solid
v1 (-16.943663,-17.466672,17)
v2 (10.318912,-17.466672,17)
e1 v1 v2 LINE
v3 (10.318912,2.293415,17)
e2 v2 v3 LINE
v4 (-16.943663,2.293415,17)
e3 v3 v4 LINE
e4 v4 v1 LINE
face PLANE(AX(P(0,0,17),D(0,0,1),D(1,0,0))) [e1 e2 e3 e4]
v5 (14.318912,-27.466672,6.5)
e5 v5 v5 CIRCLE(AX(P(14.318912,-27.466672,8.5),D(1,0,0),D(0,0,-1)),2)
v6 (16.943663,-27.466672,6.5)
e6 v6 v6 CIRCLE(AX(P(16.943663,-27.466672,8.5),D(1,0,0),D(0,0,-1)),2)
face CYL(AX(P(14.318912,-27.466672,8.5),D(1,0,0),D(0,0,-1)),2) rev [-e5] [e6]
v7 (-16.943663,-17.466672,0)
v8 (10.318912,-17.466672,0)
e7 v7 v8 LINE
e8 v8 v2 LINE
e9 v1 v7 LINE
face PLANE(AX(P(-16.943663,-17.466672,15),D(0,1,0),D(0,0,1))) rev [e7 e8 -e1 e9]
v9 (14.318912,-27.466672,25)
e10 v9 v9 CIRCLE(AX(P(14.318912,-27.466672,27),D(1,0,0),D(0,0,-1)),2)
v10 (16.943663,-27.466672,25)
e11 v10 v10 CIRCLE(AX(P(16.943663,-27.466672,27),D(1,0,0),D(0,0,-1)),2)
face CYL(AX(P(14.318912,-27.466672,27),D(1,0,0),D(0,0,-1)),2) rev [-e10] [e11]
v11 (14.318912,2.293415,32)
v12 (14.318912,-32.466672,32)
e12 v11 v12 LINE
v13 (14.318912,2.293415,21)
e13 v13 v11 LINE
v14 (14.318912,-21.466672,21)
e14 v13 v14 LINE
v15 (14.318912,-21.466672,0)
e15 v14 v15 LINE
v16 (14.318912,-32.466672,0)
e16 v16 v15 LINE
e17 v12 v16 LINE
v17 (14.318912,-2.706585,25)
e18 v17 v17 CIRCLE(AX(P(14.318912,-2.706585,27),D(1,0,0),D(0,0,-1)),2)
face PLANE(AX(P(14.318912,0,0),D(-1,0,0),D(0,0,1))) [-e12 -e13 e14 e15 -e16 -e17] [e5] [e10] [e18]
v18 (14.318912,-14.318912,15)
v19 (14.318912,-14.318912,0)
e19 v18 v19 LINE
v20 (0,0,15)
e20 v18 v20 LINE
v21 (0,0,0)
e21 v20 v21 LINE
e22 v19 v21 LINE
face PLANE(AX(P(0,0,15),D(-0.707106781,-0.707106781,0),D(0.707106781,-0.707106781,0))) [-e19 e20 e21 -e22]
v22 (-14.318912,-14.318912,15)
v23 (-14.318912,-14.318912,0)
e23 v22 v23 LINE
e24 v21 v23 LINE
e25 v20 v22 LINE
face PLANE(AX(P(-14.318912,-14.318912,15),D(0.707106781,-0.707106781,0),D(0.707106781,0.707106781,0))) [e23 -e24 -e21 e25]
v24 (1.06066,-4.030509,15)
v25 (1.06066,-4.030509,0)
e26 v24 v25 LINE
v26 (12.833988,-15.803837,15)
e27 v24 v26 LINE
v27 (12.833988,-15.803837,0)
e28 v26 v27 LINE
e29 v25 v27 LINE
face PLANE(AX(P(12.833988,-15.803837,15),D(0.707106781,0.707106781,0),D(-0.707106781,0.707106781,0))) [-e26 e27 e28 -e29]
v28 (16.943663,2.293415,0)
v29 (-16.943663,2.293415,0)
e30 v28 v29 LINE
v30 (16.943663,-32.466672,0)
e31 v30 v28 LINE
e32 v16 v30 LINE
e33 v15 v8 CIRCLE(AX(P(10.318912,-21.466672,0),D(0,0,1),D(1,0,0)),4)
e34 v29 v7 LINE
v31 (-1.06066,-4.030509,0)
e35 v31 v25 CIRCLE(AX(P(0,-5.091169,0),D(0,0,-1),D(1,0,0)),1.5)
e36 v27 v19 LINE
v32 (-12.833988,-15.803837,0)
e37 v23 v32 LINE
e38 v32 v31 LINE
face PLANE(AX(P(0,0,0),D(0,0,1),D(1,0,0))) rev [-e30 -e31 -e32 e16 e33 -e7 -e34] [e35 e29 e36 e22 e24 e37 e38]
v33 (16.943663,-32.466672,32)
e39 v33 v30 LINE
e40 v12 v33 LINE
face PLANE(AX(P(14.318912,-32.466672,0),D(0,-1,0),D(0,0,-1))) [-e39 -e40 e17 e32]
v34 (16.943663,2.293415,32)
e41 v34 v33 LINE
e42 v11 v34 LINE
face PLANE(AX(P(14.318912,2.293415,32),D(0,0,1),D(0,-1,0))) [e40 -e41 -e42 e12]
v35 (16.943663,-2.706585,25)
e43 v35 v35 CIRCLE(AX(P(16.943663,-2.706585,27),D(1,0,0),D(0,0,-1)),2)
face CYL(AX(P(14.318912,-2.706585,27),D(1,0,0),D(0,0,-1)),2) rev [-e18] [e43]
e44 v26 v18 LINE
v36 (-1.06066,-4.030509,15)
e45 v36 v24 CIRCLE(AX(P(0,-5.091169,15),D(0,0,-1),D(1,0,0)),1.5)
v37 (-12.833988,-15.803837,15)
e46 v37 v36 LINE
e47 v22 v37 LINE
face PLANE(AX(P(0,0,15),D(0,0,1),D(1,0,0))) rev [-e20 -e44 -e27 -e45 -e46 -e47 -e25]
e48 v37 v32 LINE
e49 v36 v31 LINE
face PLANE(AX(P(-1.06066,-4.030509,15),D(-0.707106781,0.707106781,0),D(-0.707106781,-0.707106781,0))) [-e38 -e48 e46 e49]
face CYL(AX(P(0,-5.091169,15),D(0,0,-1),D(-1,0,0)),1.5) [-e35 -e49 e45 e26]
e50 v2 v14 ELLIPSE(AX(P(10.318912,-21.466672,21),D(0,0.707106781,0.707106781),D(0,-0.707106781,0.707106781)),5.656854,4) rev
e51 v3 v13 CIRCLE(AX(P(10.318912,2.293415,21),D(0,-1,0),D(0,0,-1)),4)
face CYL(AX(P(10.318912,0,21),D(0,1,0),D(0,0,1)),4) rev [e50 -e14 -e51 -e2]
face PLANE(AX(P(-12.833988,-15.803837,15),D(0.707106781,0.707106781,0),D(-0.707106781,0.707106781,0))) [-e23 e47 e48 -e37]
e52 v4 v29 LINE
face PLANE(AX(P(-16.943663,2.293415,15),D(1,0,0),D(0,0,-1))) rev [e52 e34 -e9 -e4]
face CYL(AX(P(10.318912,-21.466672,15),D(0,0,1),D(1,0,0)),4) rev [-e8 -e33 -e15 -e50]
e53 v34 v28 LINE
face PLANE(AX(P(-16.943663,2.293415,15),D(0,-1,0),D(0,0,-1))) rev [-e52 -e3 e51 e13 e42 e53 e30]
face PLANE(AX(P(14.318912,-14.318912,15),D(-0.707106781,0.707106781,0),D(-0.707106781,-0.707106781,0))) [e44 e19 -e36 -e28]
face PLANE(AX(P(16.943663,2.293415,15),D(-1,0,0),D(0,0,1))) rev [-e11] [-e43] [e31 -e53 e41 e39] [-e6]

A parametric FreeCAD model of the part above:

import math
import FreeCAD as App
import Part
import Sketcher

V = App.Vector
Q = App.Units.Quantity


def edges_at(feature, points):
    """Names of the edges that pass closest to the given points."""
    edges = feature.Shape.Edges
    near = lambda p: min(range(len(edges)), key=lambda i: edges[i].distToShape(Part.Vertex(*p))[0])
    return sorted({f"Edge{near(p) + 1}" for p in points})

doc = App.newDocument("Part")
body = doc.addObject("PartDesign::Body", "Body")

sketch1 = doc.addObject("Sketcher::SketchObject", "Sketch")
body.addObject(sketch1)
sketch1.AttachmentSupport = (doc.XY_Plane, [""])
sketch1.MapMode = "FlatFace"
sketch1.addGeometry([
    Part.LineSegment(V(-16.9, 2.3, 0), V(-16.9, -17.5, 0)),
    Part.LineSegment(V(-16.9, -17.5, 0), V(16.9, -17.5, 0)),
    Part.LineSegment(V(16.9, -17.5, 0), V(16.9, 2.3, 0)),
    Part.LineSegment(V(16.9, 2.3, 0), V(-16.9, 2.3, 0)),
    Part.LineSegment(V(-14.3, -14.3, 0), V(0, 0, 0)),
    Part.LineSegment(V(0, 0, 0), V(14.3, -14.3, 0)),
    Part.LineSegment(V(14.3, -14.3, 0), V(12.8, -15.8, 0)),
    Part.LineSegment(V(12.8, -15.8, 0), V(1.1, -4, 0)),
    Part.ArcOfCircle(Part.Circle(V(0, -5.1, 0), V(0, 0, 1), 1.5), math.radians(45), math.radians(135)),
    Part.LineSegment(V(-1.1, -4, 0), V(-12.8, -15.8, 0)),
    Part.LineSegment(V(-12.8, -15.8, 0), V(-14.3, -14.3, 0)),
], False)
sketch1.addConstraint([
    Sketcher.Constraint("Coincident", 0, 2, 1, 1),
    Sketcher.Constraint("Coincident", 1, 2, 2, 1),
    Sketcher.Constraint("Coincident", 2, 2, 3, 1),
    Sketcher.Constraint("Coincident", 3, 2, 0, 1),
    Sketcher.Constraint("Coincident", 4, 2, 5, 1),
    Sketcher.Constraint("Coincident", 5, 2, 6, 1),
    Sketcher.Constraint("Coincident", 6, 2, 7, 1),
    Sketcher.Constraint("Tangent", 7, 2, 8, 1),
    Sketcher.Constraint("Tangent", 8, 2, 9, 1),
    Sketcher.Constraint("Coincident", 9, 2, 10, 1),
    Sketcher.Constraint("Coincident", 10, 2, 4, 1),
    Sketcher.Constraint("Vertical", 0),
    Sketcher.Constraint("Horizontal", 1),
    Sketcher.Constraint("Vertical", 2),
    Sketcher.Constraint("Horizontal", 3),
    Sketcher.Constraint("Coincident", 4, 2, -1, 1),
    Sketcher.Constraint("Symmetric", 7, 2, 8, 2, -2),
    Sketcher.Constraint("Symmetric", 5, 2, 10, 2, -2),
    Sketcher.Constraint("Perpendicular", 4, 5),
    Sketcher.Constraint("Perpendicular", 5, 6),
    Sketcher.Constraint("Perpendicular", 6, 7),
    Sketcher.Constraint("Perpendicular", 9, 10),
    Sketcher.Constraint("Radius", 8, Q("1.5 mm")),
    Sketcher.Constraint("Distance", 6, Q("2.1 mm")),
    Sketcher.Constraint("Distance", 4, Q("20.25 mm")),
    Sketcher.Constraint("DistanceX", 1, 1, 1, 2, Q("33.887327 mm")),
    Sketcher.Constraint("DistanceY", 0, 2, 0, 1, Q("19.760087 mm")),
    Sketcher.Constraint("DistanceX", 5, 2, 1, 2, Q("2.624751 mm")),
    Sketcher.Constraint("DistanceY", 1, 2, 5, 2, Q("3.14776 mm")),
])
pad1 = doc.addObject("PartDesign::Pad", "Pad")
body.addObject(pad1)
pad1.Profile = sketch1
pad1.Length = 15

sketch2 = doc.addObject("Sketcher::SketchObject", "Sketch001")
body.addObject(sketch2)
sketch2.AttachmentSupport = (doc.XY_Plane, [""])
sketch2.MapMode = "FlatFace"
sketch2.AttachmentOffset = App.Placement(V(0, 0, 15), App.Rotation())
sketch2.addGeometry([
    Part.LineSegment(V(-17, 2, 0), V(-17, -17, 0)),
    Part.LineSegment(V(-17, -17, 0), V(17, -17, 0)),
    Part.LineSegment(V(17, -17, 0), V(17, 2, 0)),
    Part.LineSegment(V(17, 2, 0), V(-17, 2, 0)),
], False)
sketch2.addConstraint([
    Sketcher.Constraint("Coincident", 0, 2, 1, 1),
    Sketcher.Constraint("Coincident", 1, 2, 2, 1),
    Sketcher.Constraint("Coincident", 2, 2, 3, 1),
    Sketcher.Constraint("Coincident", 3, 2, 0, 1),
    Sketcher.Constraint("Vertical", 0),
    Sketcher.Constraint("Horizontal", 1),
    Sketcher.Constraint("Vertical", 2),
    Sketcher.Constraint("Horizontal", 3),
    Sketcher.Constraint("DistanceX", 1, 1, 1, 2, Q("33.887327 mm")),
    Sketcher.Constraint("DistanceY", 0, 2, 0, 1, Q("19.760087 mm")),
    Sketcher.Constraint("DistanceX", 0, 2, -1, 1, Q("16.943663 mm")),
    Sketcher.Constraint("DistanceY", 0, 2, -1, 1, Q("17.466672 mm")),
])
pad2 = doc.addObject("PartDesign::Pad", "Pad001")
body.addObject(pad2)
pad2.Profile = sketch2
pad2.Length = 2

sketch3 = doc.addObject("Sketcher::SketchObject", "Sketch002")
body.addObject(sketch3)
sketch3.AttachmentSupport = (doc.YZ_Plane, [""])
sketch3.MapMode = "FlatFace"
sketch3.AttachmentOffset = App.Placement(V(0, 0, 16.943663), App.Rotation())
sketch3.addGeometry([
    Part.LineSegment(V(2.3, 32, 0), V(-32.5, 32, 0)),
    Part.LineSegment(V(-32.5, 32, 0), V(-32.5, 0, 0)),
    Part.LineSegment(V(-32.5, 0, 0), V(2.3, 0, 0)),
    Part.LineSegment(V(2.3, 0, 0), V(2.3, 32, 0)),
    Part.Circle(V(-27.5, 27, 0), V(0, 0, 1), 2),
    Part.Circle(V(-27.5, 8.5, 0), V(0, 0, 1), 2),
    Part.Circle(V(-2.7, 27, 0), V(0, 0, 1), 2),
], False)
sketch3.addConstraint([
    Sketcher.Constraint("Coincident", 0, 2, 1, 1),
    Sketcher.Constraint("Coincident", 1, 2, 2, 1),
    Sketcher.Constraint("Coincident", 2, 2, 3, 1),
    Sketcher.Constraint("Coincident", 3, 2, 0, 1),
    Sketcher.Constraint("Horizontal", 0),
    Sketcher.Constraint("Vertical", 1),
    Sketcher.Constraint("Horizontal", 2),
    Sketcher.Constraint("Vertical", 3),
    Sketcher.Constraint("Equal", 4, 5),
    Sketcher.Constraint("Equal", 5, 6),
    Sketcher.Constraint("PointOnObject", 1, 2, -1),
    Sketcher.Constraint("Horizontal", 4, 3, 6, 3),
    Sketcher.Constraint("Vertical", 4, 3, 5, 3),
    Sketcher.Constraint("Diameter", 4, Q("4 mm")),
    Sketcher.Constraint("DistanceY", 1, 2, 1, 1, Q("32 mm")),
    Sketcher.Constraint("DistanceY", -1, 1, 4, 3, Q("27 mm")),
    Sketcher.Constraint("DistanceX", 0, 2, 4, 3, Q("5 mm")),
    Sketcher.Constraint("DistanceX", 6, 3, 2, 2, Q("5 mm")),
    Sketcher.Constraint("DistanceY", -1, 1, 5, 3, Q("8.5 mm")),
    Sketcher.Constraint("DistanceX", 0, 2, 0, 1, Q("34.760087 mm")),
    Sketcher.Constraint("DistanceX", 4, 3, -1, 1, Q("27.466672 mm")),
])
pad3 = doc.addObject("PartDesign::Pad", "Pad002")
body.addObject(pad3)
pad3.Profile = sketch3
pad3.Length = 2.624753
pad3.Reversed = True
doc.recompute()

fillet = doc.addObject("PartDesign::Fillet", "Fillet")
body.addObject(fillet)
fillet.Base = (pad3, edges_at(pad3, [(14.319, -7.587, 17), (14.319, -17.467, 8.5)]))
fillet.Radius = 4

doc.recompute()
